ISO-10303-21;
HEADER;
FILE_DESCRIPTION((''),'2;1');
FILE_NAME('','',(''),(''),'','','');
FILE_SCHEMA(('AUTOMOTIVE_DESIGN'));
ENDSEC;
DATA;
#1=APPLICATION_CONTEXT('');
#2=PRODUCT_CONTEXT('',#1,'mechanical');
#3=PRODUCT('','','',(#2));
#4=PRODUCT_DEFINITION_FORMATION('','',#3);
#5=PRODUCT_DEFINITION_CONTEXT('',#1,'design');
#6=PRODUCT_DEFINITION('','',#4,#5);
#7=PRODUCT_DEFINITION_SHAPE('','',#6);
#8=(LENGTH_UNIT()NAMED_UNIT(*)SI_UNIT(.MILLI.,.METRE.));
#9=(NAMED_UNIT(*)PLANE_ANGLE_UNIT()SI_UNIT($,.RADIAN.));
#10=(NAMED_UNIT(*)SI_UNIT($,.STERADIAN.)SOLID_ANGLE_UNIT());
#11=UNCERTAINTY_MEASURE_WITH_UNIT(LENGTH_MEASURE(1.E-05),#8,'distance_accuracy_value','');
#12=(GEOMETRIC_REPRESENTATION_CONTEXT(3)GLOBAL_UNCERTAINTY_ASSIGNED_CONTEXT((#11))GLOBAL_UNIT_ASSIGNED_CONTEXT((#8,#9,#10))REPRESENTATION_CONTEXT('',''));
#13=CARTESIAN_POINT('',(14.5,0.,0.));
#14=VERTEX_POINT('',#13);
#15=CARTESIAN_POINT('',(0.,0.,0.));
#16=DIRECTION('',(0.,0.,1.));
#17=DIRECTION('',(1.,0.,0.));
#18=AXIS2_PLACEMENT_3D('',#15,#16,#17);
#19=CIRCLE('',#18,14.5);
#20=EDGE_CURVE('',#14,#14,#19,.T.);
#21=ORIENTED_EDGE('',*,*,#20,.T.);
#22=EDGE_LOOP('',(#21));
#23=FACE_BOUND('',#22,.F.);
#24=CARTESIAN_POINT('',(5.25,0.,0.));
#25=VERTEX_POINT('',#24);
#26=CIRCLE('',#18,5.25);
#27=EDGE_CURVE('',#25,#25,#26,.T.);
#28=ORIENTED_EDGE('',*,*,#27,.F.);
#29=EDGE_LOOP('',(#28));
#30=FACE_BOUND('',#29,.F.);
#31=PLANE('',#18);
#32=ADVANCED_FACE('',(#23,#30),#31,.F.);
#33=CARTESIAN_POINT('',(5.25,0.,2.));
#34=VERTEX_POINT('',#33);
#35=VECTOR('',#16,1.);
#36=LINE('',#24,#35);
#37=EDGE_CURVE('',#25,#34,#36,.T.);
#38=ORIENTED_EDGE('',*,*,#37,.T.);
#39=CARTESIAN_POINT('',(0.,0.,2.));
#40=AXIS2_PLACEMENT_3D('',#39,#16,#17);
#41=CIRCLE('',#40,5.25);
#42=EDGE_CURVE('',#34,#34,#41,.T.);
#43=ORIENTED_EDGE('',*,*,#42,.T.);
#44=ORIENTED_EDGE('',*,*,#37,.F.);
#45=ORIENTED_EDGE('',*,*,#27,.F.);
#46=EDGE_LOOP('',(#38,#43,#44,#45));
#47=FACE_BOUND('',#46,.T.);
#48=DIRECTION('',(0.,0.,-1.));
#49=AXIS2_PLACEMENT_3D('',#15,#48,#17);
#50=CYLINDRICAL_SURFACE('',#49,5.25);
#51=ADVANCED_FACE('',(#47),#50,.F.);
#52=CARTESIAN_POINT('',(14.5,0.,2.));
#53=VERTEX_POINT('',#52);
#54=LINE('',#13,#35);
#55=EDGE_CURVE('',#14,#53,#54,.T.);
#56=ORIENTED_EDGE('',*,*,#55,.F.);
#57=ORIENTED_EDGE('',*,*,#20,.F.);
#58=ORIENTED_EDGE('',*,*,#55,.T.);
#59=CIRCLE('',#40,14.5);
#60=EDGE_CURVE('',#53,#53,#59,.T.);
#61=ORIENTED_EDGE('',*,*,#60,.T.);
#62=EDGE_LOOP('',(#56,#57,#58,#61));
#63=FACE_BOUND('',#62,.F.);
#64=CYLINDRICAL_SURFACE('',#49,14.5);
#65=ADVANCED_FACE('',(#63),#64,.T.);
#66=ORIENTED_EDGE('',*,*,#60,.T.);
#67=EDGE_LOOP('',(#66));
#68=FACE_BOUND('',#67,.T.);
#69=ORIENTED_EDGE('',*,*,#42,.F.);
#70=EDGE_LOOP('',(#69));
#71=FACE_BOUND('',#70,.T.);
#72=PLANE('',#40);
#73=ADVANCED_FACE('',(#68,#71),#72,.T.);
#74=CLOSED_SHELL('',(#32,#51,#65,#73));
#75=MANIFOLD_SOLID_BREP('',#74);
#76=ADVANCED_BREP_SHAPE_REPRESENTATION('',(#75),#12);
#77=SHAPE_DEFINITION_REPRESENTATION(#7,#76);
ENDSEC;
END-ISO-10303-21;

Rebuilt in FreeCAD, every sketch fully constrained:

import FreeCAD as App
import Part
import Sketcher

doc = App.newDocument("Part")
body = doc.addObject("PartDesign::Body", "Body")

# Sketch on XY plane
sketch1 = body.newObject("Sketcher::SketchObject", "Sketch")
sketch1.AttachmentSupport = (doc.getObject("XY_Plane"), [""])
sketch1.MapMode = "FlatFace"
sketch1.addGeometry([
    Part.Circle(App.Vector(0, 0, 0), App.Vector(0, 0, 1), 14.5),
    Part.Circle(App.Vector(0, 0, 0), App.Vector(0, 0, 1), 5.25),
], False)
sketch1.addConstraint([
    Sketcher.Constraint("Coincident", 0, 3, -1, 1),
    Sketcher.Constraint("Coincident", 1, 3, -1, 1),
    Sketcher.Constraint("Diameter", 0, 29.0),
    Sketcher.Constraint("Diameter", 1, 10.5),
])
pad1 = body.newObject("PartDesign::Pad", "Pad")
pad1.Profile = sketch1
pad1.Length = 2

doc.recompute()
